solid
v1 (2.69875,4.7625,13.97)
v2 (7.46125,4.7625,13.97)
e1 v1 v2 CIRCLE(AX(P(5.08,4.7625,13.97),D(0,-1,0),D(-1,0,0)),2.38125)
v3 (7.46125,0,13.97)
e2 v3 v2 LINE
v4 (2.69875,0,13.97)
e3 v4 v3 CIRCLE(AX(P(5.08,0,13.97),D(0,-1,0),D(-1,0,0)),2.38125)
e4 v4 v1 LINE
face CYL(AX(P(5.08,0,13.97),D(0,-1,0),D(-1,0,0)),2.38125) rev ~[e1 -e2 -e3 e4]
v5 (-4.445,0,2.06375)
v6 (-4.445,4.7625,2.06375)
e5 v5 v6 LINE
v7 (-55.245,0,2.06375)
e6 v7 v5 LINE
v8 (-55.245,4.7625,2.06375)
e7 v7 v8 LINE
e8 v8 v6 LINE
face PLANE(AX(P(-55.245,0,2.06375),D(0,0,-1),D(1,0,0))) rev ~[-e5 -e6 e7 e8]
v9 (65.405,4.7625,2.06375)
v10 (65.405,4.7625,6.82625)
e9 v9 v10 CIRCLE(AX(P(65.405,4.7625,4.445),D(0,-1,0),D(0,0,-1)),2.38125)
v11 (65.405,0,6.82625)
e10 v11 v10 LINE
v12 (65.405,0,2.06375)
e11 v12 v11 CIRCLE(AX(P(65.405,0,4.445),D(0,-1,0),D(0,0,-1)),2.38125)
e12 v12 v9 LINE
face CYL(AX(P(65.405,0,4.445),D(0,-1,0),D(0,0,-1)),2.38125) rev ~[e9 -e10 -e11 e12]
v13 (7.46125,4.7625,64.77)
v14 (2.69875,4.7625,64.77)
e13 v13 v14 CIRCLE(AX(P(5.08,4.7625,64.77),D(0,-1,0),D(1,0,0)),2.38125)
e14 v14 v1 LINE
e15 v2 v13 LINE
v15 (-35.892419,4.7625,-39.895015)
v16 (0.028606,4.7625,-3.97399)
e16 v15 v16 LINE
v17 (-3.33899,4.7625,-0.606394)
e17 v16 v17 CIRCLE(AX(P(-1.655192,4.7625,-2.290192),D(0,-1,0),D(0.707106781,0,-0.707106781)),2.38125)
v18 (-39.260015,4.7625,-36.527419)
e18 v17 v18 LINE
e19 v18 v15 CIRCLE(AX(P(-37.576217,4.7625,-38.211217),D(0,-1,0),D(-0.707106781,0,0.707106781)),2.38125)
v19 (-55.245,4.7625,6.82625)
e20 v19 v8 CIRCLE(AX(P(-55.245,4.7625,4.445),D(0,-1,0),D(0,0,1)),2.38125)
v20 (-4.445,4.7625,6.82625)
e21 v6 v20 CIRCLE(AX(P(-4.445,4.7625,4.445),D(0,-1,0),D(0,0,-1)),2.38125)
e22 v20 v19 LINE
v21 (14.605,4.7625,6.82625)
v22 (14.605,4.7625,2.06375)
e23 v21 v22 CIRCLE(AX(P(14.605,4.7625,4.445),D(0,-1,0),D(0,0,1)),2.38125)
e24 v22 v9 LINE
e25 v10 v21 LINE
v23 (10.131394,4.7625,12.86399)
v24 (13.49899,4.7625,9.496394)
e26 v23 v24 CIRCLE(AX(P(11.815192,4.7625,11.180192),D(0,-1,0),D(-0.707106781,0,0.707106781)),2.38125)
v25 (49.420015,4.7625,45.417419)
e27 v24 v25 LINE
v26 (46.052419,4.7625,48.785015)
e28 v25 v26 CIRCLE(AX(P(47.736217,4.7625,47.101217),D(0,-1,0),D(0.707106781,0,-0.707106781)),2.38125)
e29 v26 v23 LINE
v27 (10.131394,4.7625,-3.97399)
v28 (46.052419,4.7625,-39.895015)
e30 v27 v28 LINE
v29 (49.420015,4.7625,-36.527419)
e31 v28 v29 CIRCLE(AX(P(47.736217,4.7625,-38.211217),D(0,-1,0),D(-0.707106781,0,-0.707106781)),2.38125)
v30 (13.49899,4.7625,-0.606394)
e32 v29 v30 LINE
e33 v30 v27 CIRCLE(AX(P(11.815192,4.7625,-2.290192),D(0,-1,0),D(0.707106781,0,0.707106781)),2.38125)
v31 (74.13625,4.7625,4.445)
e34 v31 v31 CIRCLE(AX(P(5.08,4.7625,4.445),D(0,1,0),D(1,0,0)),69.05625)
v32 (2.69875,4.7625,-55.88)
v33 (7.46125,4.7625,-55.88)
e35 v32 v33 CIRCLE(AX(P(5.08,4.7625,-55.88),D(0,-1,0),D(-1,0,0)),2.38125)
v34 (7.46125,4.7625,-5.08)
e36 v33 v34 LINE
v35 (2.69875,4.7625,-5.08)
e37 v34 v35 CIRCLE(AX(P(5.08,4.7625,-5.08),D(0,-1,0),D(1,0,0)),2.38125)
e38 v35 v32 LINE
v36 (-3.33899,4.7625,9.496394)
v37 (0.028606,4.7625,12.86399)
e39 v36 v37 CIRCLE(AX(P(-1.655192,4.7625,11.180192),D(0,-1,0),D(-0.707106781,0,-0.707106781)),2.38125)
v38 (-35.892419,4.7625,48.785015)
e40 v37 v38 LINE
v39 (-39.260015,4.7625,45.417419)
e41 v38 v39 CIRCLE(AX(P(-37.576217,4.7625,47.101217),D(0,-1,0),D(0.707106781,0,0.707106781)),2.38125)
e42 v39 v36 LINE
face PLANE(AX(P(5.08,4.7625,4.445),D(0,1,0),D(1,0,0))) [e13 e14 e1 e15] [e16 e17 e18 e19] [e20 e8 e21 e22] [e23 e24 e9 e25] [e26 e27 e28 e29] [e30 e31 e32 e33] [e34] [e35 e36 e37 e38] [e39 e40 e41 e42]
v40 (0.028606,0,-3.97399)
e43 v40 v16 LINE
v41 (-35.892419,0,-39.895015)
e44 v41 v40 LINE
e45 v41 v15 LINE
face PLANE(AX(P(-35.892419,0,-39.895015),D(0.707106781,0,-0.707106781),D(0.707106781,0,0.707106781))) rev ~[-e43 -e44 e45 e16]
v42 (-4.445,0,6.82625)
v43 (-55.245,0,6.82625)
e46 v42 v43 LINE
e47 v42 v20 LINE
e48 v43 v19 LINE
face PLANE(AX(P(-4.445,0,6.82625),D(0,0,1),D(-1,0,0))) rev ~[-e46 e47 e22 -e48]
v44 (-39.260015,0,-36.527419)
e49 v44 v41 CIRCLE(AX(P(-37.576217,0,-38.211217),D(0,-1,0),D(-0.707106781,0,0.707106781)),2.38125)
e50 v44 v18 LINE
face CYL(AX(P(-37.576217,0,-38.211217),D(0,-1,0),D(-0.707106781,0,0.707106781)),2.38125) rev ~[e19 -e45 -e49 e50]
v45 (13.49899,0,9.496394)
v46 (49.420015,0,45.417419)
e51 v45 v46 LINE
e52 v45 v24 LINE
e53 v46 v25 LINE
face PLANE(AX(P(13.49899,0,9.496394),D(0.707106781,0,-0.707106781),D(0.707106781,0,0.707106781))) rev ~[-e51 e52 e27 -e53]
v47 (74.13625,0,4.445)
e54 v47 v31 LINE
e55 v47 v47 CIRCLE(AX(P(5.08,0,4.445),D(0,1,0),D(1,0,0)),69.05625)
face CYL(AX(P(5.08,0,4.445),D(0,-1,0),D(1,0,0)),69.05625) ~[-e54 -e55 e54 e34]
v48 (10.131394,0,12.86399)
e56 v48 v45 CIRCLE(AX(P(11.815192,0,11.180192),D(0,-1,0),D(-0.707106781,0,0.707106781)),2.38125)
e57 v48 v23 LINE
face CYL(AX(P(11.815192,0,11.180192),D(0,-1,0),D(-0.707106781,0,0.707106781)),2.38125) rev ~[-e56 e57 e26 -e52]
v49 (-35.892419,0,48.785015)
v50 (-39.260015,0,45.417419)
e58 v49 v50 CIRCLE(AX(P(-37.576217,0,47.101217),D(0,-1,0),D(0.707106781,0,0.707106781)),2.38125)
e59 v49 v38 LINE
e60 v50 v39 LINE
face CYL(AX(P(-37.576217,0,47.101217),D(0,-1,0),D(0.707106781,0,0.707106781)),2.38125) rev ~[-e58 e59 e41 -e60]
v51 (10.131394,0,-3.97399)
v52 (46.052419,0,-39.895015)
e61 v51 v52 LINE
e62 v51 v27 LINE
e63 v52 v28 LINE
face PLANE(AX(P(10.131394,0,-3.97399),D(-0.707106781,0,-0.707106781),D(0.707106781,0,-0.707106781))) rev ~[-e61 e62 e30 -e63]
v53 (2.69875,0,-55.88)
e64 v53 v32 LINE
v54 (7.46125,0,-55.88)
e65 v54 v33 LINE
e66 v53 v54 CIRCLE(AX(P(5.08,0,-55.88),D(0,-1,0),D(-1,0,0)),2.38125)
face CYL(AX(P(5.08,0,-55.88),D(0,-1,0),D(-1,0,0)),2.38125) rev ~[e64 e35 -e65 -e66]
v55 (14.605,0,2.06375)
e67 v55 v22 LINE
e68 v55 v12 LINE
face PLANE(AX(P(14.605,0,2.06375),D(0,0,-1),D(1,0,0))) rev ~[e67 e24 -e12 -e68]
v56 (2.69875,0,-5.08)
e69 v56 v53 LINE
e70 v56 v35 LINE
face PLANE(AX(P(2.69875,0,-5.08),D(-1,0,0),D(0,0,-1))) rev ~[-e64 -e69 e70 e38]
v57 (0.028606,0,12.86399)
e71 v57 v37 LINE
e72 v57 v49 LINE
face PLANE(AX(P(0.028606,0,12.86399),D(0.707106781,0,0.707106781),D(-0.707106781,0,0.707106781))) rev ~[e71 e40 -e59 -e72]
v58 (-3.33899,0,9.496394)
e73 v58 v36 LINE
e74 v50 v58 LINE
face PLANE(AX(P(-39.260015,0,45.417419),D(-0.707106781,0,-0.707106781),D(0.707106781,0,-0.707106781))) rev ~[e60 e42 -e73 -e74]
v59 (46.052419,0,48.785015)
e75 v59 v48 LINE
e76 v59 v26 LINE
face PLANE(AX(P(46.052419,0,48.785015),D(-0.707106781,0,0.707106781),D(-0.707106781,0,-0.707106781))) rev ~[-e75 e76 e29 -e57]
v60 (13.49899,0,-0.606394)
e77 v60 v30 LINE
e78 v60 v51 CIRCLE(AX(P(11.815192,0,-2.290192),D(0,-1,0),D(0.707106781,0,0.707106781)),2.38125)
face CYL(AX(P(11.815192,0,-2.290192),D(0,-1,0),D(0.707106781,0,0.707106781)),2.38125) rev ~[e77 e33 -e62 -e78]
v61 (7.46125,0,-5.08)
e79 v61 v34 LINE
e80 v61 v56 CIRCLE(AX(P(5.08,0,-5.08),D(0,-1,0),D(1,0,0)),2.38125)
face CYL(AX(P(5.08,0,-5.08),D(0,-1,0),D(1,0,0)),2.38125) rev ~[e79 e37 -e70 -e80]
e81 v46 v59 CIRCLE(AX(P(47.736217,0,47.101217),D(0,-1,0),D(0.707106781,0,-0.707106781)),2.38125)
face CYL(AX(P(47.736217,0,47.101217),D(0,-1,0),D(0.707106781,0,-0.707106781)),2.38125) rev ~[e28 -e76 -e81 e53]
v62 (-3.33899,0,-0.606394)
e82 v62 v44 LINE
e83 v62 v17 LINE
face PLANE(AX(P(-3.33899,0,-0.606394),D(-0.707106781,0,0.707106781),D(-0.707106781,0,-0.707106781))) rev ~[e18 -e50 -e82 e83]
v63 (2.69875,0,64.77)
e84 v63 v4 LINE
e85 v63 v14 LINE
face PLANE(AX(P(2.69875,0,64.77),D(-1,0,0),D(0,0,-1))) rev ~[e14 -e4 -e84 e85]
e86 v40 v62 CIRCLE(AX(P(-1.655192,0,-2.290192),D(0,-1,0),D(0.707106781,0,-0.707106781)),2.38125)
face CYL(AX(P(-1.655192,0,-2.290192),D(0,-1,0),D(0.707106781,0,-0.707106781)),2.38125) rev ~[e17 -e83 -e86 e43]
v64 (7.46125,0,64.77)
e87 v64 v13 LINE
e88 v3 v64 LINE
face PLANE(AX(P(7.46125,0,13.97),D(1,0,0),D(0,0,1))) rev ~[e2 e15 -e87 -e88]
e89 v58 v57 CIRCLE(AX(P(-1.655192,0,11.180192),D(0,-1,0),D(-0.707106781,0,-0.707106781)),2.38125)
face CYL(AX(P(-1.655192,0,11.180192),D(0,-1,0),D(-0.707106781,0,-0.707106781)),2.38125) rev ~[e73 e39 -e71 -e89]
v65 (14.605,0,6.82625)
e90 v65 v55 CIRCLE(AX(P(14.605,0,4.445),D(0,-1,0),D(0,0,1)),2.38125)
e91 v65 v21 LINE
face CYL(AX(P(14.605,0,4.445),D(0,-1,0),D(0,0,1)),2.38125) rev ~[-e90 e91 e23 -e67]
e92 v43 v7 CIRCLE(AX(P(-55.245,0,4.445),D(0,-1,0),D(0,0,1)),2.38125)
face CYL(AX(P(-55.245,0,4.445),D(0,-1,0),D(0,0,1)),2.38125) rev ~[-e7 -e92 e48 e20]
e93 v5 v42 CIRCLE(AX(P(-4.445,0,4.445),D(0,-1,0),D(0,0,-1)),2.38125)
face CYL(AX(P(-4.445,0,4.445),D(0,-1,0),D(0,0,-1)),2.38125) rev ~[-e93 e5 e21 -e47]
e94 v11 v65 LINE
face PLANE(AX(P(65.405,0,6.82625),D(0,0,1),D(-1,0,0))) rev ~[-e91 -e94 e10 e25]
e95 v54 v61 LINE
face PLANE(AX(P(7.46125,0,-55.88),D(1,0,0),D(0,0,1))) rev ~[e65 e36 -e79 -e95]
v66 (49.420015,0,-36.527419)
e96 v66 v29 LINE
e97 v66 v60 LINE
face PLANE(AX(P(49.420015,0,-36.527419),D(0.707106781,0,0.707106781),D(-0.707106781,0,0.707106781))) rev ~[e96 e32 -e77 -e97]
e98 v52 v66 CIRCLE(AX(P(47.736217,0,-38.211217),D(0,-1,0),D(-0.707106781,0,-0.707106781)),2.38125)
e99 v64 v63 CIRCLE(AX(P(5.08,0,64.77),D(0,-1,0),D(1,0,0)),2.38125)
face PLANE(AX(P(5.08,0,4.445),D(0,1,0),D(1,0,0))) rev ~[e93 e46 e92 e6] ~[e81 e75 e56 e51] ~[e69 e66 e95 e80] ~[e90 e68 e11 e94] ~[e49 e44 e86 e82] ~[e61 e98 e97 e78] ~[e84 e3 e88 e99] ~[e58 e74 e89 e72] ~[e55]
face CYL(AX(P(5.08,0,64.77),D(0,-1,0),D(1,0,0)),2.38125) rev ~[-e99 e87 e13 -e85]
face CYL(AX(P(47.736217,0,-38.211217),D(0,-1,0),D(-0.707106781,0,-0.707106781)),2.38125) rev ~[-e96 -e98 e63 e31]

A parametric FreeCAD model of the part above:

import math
import FreeCAD as App
import Part
import Sketcher
Q = App.Units.Quantity

doc = App.newDocument("Part")
body = doc.addObject("PartDesign::Body", "Body")

sketch1 = doc.addObject("Sketcher::SketchObject", "Sketch")
body.addObject(sketch1)
sketch1.AttachmentSupport = (doc.XZ_Plane, [""])
sketch1.MapMode = "FlatFace"
sketch1.addGeometry([
    Part.Circle(App.Vector(5.08, 4.445, 0), App.Vector(0, 0, 1), 69.05625),
    Part.ArcOfCircle(Part.Circle(App.Vector(-1.655192, 11.180192, 0), App.Vector(0, 0, 1), 2.38125), math.radians(-135), math.radians(45)),
    Part.LineSegment(App.Vector(0.028606, 12.86399, 0), App.Vector(-35.892419, 48.785015, 0)),
    Part.ArcOfCircle(Part.Circle(App.Vector(-37.576217, 47.101217, 0), App.Vector(0, 0, 1), 2.38125), math.radians(45), math.radians(225)),
    Part.LineSegment(App.Vector(-39.260015, 45.417419, 0), App.Vector(-3.33899, 9.496394, 0)),
    Part.ArcOfCircle(Part.Circle(App.Vector(5.08, 13.97, 0), App.Vector(0, 0, 1), 2.38125), math.radians(180), math.radians(360)),
    Part.LineSegment(App.Vector(7.46125, 13.97, 0), App.Vector(7.46125, 64.77, 0)),
    Part.ArcOfCircle(Part.Circle(App.Vector(5.08, 64.77, 0), App.Vector(0, 0, 1), 2.38125), math.radians(0), math.radians(180)),
    Part.LineSegment(App.Vector(2.69875, 64.77, 0), App.Vector(2.69875, 13.97, 0)),
    Part.ArcOfCircle(Part.Circle(App.Vector(11.815192, 11.180192, 0), App.Vector(0, 0, 1), 2.38125), math.radians(135), math.radians(315)),
    Part.LineSegment(App.Vector(13.49899, 9.496394, 0), App.Vector(49.420015, 45.417419, 0)),
    Part.ArcOfCircle(Part.Circle(App.Vector(47.736217, 47.101217, 0), App.Vector(0, 0, 1), 2.38125), math.radians(-45), math.radians(135)),
    Part.LineSegment(App.Vector(46.052419, 48.785015, 0), App.Vector(10.131394, 12.86399, 0)),
    Part.ArcOfCircle(Part.Circle(App.Vector(-4.445, 4.445, 0), App.Vector(0, 0, 1), 2.38125), math.radians(-90), math.radians(90)),
    Part.LineSegment(App.Vector(-4.445, 6.82625, 0), App.Vector(-55.245, 6.82625, 0)),
    Part.ArcOfCircle(Part.Circle(App.Vector(-55.245, 4.445, 0), App.Vector(0, 0, 1), 2.38125), math.radians(90), math.radians(270)),
    Part.LineSegment(App.Vector(-55.245, 2.06375, 0), App.Vector(-4.445, 2.06375, 0)),
    Part.ArcOfCircle(Part.Circle(App.Vector(-1.655192, -2.290192, 0), App.Vector(0, 0, 1), 2.38125), math.radians(-45), math.radians(135)),
    Part.LineSegment(App.Vector(-3.33899, -0.606394, 0), App.Vector(-39.260015, -36.527419, 0)),
    Part.ArcOfCircle(Part.Circle(App.Vector(-37.576217, -38.211217, 0), App.Vector(0, 0, 1), 2.38125), math.radians(135), math.radians(315)),
    Part.LineSegment(App.Vector(-35.892419, -39.895015, 0), App.Vector(0.028606, -3.97399, 0)),
    Part.ArcOfCircle(Part.Circle(App.Vector(11.815192, -2.290192, 0), App.Vector(0, 0, 1), 2.38125), math.radians(45), math.radians(225)),
    Part.LineSegment(App.Vector(10.131394, -3.97399, 0), App.Vector(46.052419, -39.895015, 0)),
    Part.ArcOfCircle(Part.Circle(App.Vector(47.736217, -38.211217, 0), App.Vector(0, 0, 1), 2.38125), math.radians(-135), math.radians(45)),
    Part.LineSegment(App.Vector(49.420015, -36.527419, 0), App.Vector(13.49899, -0.606394, 0)),
    Part.ArcOfCircle(Part.Circle(App.Vector(14.605, 4.445, 0), App.Vector(0, 0, 1), 2.38125), math.radians(90), math.radians(270)),
    Part.LineSegment(App.Vector(14.605, 2.06375, 0), App.Vector(65.405, 2.06375, 0)),
    Part.ArcOfCircle(Part.Circle(App.Vector(65.405, 4.445, 0), App.Vector(0, 0, 1), 2.38125), math.radians(-90), math.radians(90)),
    Part.LineSegment(App.Vector(65.405, 6.82625, 0), App.Vector(14.605, 6.82625, 0)),
    Part.ArcOfCircle(Part.Circle(App.Vector(5.08, -5.08, 0), App.Vector(0, 0, 1), 2.38125), math.radians(0), math.radians(180)),
    Part.LineSegment(App.Vector(2.69875, -5.08, 0), App.Vector(2.69875, -55.88, 0)),
    Part.ArcOfCircle(Part.Circle(App.Vector(5.08, -55.88, 0), App.Vector(0, 0, 1), 2.38125), math.radians(180), math.radians(360)),
    Part.LineSegment(App.Vector(7.46125, -55.88, 0), App.Vector(7.46125, -5.08, 0)),
], False)
sketch1.addConstraint([
    Sketcher.Constraint("Tangent", 1, 2, 2, 1),
    Sketcher.Constraint("Tangent", 2, 2, 3, 1),
    Sketcher.Constraint("Tangent", 3, 2, 4, 1),
    Sketcher.Constraint("Tangent", 4, 2, 1, 1),
    Sketcher.Constraint("Tangent", 5, 2, 6, 1),
    Sketcher.Constraint("Tangent", 6, 2, 7, 1),
    Sketcher.Constraint("Tangent", 7, 2, 8, 1),
    Sketcher.Constraint("Tangent", 8, 2, 5, 1),
    Sketcher.Constraint("Tangent", 9, 2, 10, 1),
    Sketcher.Constraint("Tangent", 10, 2, 11, 1),
    Sketcher.Constraint("Tangent", 11, 2, 12, 1),
    Sketcher.Constraint("Tangent", 12, 2, 9, 1),
    Sketcher.Constraint("Tangent", 13, 2, 14, 1),
    Sketcher.Constraint("Tangent", 14, 2, 15, 1),
    Sketcher.Constraint("Tangent", 15, 2, 16, 1),
    Sketcher.Constraint("Tangent", 16, 2, 13, 1),
    Sketcher.Constraint("Tangent", 17, 2, 18, 1),
    Sketcher.Constraint("Tangent", 18, 2, 19, 1),
    Sketcher.Constraint("Tangent", 19, 2, 20, 1),
    Sketcher.Constraint("Tangent", 20, 2, 17, 1),
    Sketcher.Constraint("Tangent", 21, 2, 22, 1),
    Sketcher.Constraint("Tangent", 22, 2, 23, 1),
    Sketcher.Constraint("Tangent", 23, 2, 24, 1),
    Sketcher.Constraint("Tangent", 24, 2, 21, 1),
    Sketcher.Constraint("Tangent", 25, 2, 26, 1),
    Sketcher.Constraint("Tangent", 26, 2, 27, 1),
    Sketcher.Constraint("Tangent", 27, 2, 28, 1),
    Sketcher.Constraint("Tangent", 28, 2, 25, 1),
    Sketcher.Constraint("Tangent", 29, 2, 30, 1),
    Sketcher.Constraint("Tangent", 30, 2, 31, 1),
    Sketcher.Constraint("Tangent", 31, 2, 32, 1),
    Sketcher.Constraint("Tangent", 32, 2, 29, 1),
    Sketcher.Constraint("Vertical", 6),
    Sketcher.Constraint("Vertical", 8),
    Sketcher.Constraint("Horizontal", 14),
    Sketcher.Constraint("Horizontal", 16),
    Sketcher.Constraint("Horizontal", 26),
    Sketcher.Constraint("Horizontal", 28),
    Sketcher.Constraint("Vertical", 30),
    Sketcher.Constraint("Vertical", 32),
    Sketcher.Constraint("Equal", 1, 3),
    Sketcher.Constraint("Equal", 3, 5),
    Sketcher.Constraint("Equal", 7, 9),
    Sketcher.Constraint("Equal", 9, 11),
    Sketcher.Constraint("Equal", 11, 13),
    Sketcher.Constraint("Equal", 15, 17),
    Sketcher.Constraint("Equal", 17, 19),
    Sketcher.Constraint("Equal", 19, 21),
    Sketcher.Constraint("Equal", 21, 23),
    Sketcher.Constraint("Equal", 23, 25),
    Sketcher.Constraint("Equal", 27, 29),
    Sketcher.Constraint("Perpendicular", 4, 10),
    Sketcher.Constraint("Parallel", 12, 18),
    Sketcher.Constraint("Perpendicular", 20, 22),
    Sketcher.Constraint("Horizontal", 1, 3, 9, 3),
    Sketcher.Constraint("Horizontal", 3, 3, 11, 3),
    Sketcher.Constraint("Horizontal", 0, 3, 13, 3),
    Sketcher.Constraint("Horizontal", 17, 3, 21, 3),
    Sketcher.Constraint("Horizontal", 19, 3, 23, 3),
    Sketcher.Constraint("Horizontal", 15, 3, 25, 3),
    Sketcher.Constraint("Horizontal", 4, 2, 9, 2),
    Sketcher.Constraint("Vertical", 0, 3, 5, 3),
    Sketcher.Constraint("Vertical", 1, 3, 17, 3),
    Sketcher.Constraint("Vertical", 3, 3, 19, 3),
    Sketcher.Constraint("Vertical", 9, 3, 21, 3),
    Sketcher.Constraint("Vertical", 7, 3, 29, 3),
    Sketcher.Constraint("Equal", 16, 26),
    Sketcher.Constraint("Equal", 28, 6),
    Sketcher.Constraint("Equal", 8, 30),
    Sketcher.Constraint("DistanceX", 14, 2, 14, 1, Q("2 in")),
    Sketcher.Constraint("Distance", 2, Q("2 in")),
    Sketcher.Constraint("Diameter", 0, Q("5.4375 in")),
    Sketcher.Constraint("Radius", 1, Q("0.09375 in")),
    Sketcher.Constraint("DistanceX", -1, 1, 0, 3, Q("0.2 in")),
    Sketcher.Constraint("DistanceY", 29, 3, -1, 1, Q("0.2 in")),
    Sketcher.Constraint("DistanceY", -1, 1, 5, 3, Q("0.55 in")),
    Sketcher.Constraint("DistanceY", -1, 1, 0, 3, Q("0.175 in")),
    Sketcher.Constraint("DistanceX", 13, 3, -1, 1, Q("0.175 in")),
    Sketcher.Constraint("DistanceX", -1, 1, 25, 3, Q("0.575 in")),
    Sketcher.Constraint("DistanceY", -1, 1, 1, 2, Q("12.86399 mm")),
    Sketcher.Constraint("DistanceX", 2, 2, -1, 1, Q("35.892419 mm")),
    Sketcher.Constraint("DistanceX", -1, 1, 9, 2, Q("13.49899 mm")),
    Sketcher.Constraint("DistanceY", 18, 2, -1, 1, Q("36.527419 mm")),
])
pad1 = doc.addObject("PartDesign::Pad", "Pad")
body.addObject(pad1)
pad1.Profile = sketch1
pad1.Length = Q("0.1875 in")
pad1.Reversed = True

doc.recompute()
